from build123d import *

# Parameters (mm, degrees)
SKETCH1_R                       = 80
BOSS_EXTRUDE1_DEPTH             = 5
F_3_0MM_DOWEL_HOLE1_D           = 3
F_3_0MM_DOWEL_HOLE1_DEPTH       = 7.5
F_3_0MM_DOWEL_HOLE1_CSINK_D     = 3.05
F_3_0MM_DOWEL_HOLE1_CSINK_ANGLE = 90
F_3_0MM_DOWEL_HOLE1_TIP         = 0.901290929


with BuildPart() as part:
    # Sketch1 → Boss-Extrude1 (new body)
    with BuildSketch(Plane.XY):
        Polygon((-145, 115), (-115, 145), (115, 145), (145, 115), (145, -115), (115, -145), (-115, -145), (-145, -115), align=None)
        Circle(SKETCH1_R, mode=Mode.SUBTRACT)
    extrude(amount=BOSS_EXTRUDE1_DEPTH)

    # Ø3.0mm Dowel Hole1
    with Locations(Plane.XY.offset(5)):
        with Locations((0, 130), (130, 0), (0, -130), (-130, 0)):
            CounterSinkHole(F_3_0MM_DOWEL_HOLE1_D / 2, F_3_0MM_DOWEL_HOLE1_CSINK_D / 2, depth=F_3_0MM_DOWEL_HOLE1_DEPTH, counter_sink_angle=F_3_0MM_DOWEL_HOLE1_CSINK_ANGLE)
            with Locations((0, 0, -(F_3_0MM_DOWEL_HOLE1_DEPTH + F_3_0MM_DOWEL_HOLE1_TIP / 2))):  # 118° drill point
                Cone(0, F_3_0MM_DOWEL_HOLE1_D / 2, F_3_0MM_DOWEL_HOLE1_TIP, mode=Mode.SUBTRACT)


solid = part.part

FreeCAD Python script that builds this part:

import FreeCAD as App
import Part
import Sketcher
Q = App.Units.Quantity

doc = App.newDocument("Part")
params = doc.addObject("Spreadsheet::Sheet", "Params")
for row, (alias, value) in enumerate([
    ("sketch1_diameter", "160 mm"),
    ("sketch1_width", "230 mm"),
    ("pad1_length", "5 mm"),
    ("sketch2_diameter", "3 mm"),
    ("hole_diameter", "3 mm"),
    ("hole_depth", "7.5 mm"),
    ("hole_csink_diameter", "3.05 mm"),
], start=1):
    params.set(f"A{row}", alias)
    params.set(f"B{row}", "=" + value)
    params.setAlias(f"B{row}", alias)

body = doc.addObject("PartDesign::Body", "Body")

# Sketch on XY plane
sketch1 = body.newObject("Sketcher::SketchObject", "Sketch")
sketch1.AttachmentSupport = (doc.getObject("XY_Plane"), [""])
sketch1.MapMode = "FlatFace"
sketch1.addGeometry(Part.LineSegment(App.Vector(-115, 145, 0), App.Vector(-145, 115, 0)), False)
sketch1.addGeometry(Part.LineSegment(App.Vector(-145, 115, 0), App.Vector(-145, -115, 0)), False)
sketch1.addGeometry(Part.LineSegment(App.Vector(-145, -115, 0), App.Vector(-115, -145, 0)), False)
sketch1.addGeometry(Part.LineSegment(App.Vector(-115, -145, 0), App.Vector(115, -145, 0)), False)
sketch1.addGeometry(Part.LineSegment(App.Vector(115, -145, 0), App.Vector(145, -115, 0)), False)
sketch1.addGeometry(Part.LineSegment(App.Vector(145, -115, 0), App.Vector(145, 115, 0)), False)
sketch1.addGeometry(Part.LineSegment(App.Vector(145, 115, 0), App.Vector(115, 145, 0)), False)
sketch1.addGeometry(Part.LineSegment(App.Vector(115, 145, 0), App.Vector(-115, 145, 0)), False)
sketch1.addGeometry(Part.Circle(App.Vector(0, 0, 0), App.Vector(0, 0, 1), 80), False)
sketch1.addConstraint(Sketcher.Constraint("Coincident", 0, 2, 1, 1))
sketch1.addConstraint(Sketcher.Constraint("Coincident", 1, 2, 2, 1))
sketch1.addConstraint(Sketcher.Constraint("Coincident", 2, 2, 3, 1))
sketch1.addConstraint(Sketcher.Constraint("Coincident", 3, 2, 4, 1))
sketch1.addConstraint(Sketcher.Constraint("Coincident", 4, 2, 5, 1))
sketch1.addConstraint(Sketcher.Constraint("Coincident", 5, 2, 6, 1))
sketch1.addConstraint(Sketcher.Constraint("Coincident", 6, 2, 7, 1))
sketch1.addConstraint(Sketcher.Constraint("Coincident", 7, 2, 0, 1))
sketch1.addConstraint(Sketcher.Constraint("Vertical", 1))
sketch1.addConstraint(Sketcher.Constraint("Horizontal", 3))
sketch1.addConstraint(Sketcher.Constraint("Vertical", 5))
sketch1.addConstraint(Sketcher.Constraint("Horizontal", 7))
sketch1.addConstraint(Sketcher.Constraint("Coincident", 8, 3, -1, 1))
sketch1.addConstraint(Sketcher.Constraint("Symmetric", 0, 2, 4, 2, -1, 1))
sketch1.addConstraint(Sketcher.Constraint("Symmetric", 2, 2, 6, 2, -1, 1))
sketch1.addConstraint(Sketcher.Constraint("Perpendicular", 0, 2))
sketch1.addConstraint(Sketcher.Constraint("Perpendicular", 2, 4))
sketch1.addConstraint(Sketcher.Constraint("Perpendicular", 4, 6))
sketch1.addConstraint(Sketcher.Constraint("Horizontal", 1, 2, 4, 2))
sketch1.addConstraint(Sketcher.Constraint("Vertical", 3, 2, 6, 2))
sketch1.addConstraint(Sketcher.Constraint("Equal", 7, 1))
sketch1.addConstraint(Sketcher.Constraint("Diameter", 8, Q("160 mm")))
sketch1.addConstraint(Sketcher.Constraint("DistanceX", 3, 1, 3, 2, Q("230 mm")))
sketch1.addConstraint(Sketcher.Constraint("DistanceX", 0, 2, -1, 1, Q("145 mm")))
sketch1.setExpression("Constraints[21]", "Params.sketch1_diameter")
sketch1.setExpression("Constraints[22]", "Params.sketch1_width")
pad1 = body.newObject("PartDesign::Pad", "Pad")
pad1.Profile = sketch1
pad1.setExpression("Length", "Params.pad1_length")

# Sketch on XY plane
sketch2 = body.newObject("Sketcher::SketchObject", "Sketch001")
sketch2.AttachmentSupport = (doc.getObject("XY_Plane"), [""])
sketch2.MapMode = "FlatFace"
sketch2.AttachmentOffset = App.Placement(App.Vector(0, 0, 5), App.Rotation())
sketch2.addGeometry(Part.Circle(App.Vector(0, 130, 0), App.Vector(0, 0, 1), 1.5), False)
sketch2.addGeometry(Part.Circle(App.Vector(130, 0, 0), App.Vector(0, 0, 1), 1.5), False)
sketch2.addGeometry(Part.Circle(App.Vector(0, -130, 0), App.Vector(0, 0, 1), 1.5), False)
sketch2.addGeometry(Part.Circle(App.Vector(-130, 0, 0), App.Vector(0, 0, 1), 1.5), False)
sketch2.addConstraint(Sketcher.Constraint("Equal", 0, 1))
sketch2.addConstraint(Sketcher.Constraint("Equal", 1, 2))
sketch2.addConstraint(Sketcher.Constraint("Equal", 2, 3))
sketch2.addConstraint(Sketcher.Constraint("Symmetric", 0, 3, 2, 3, -1, 1))
sketch2.addConstraint(Sketcher.Constraint("Symmetric", 1, 3, 3, 3, -1, 1))
sketch2.addConstraint(Sketcher.Constraint("PointOnObject", 0, 3, -2))
sketch2.addConstraint(Sketcher.Constraint("PointOnObject", 1, 3, -1))
sketch2.addConstraint(Sketcher.Constraint("Diameter", 0, Q("3 mm")))
sketch2.addConstraint(Sketcher.Constraint("DistanceY", -1, 1, 0, 3, Q("130 mm")))
sketch2.addConstraint(Sketcher.Constraint("DistanceX", -1, 1, 1, 3, Q("130 mm")))
sketch2.setExpression("Constraints[7]", "Params.sketch2_diameter")
doc.recompute()
hole = body.newObject("PartDesign::Hole", "Hole")
hole.Profile = sketch2
hole.ThreadType = "None"
hole.setExpression("Diameter", "Params.hole_diameter")
hole.DepthType = "Dimension"
hole.setExpression("Depth", "Params.hole_depth")
hole.DrillPoint = "Angled"
hole.DrillPointAngle = 118
hole.HoleCutType = "Countersink"
hole.setExpression("HoleCutDiameter", "Params.hole_csink_diameter")
hole.HoleCutCountersinkAngle = 90

doc.recompute()
